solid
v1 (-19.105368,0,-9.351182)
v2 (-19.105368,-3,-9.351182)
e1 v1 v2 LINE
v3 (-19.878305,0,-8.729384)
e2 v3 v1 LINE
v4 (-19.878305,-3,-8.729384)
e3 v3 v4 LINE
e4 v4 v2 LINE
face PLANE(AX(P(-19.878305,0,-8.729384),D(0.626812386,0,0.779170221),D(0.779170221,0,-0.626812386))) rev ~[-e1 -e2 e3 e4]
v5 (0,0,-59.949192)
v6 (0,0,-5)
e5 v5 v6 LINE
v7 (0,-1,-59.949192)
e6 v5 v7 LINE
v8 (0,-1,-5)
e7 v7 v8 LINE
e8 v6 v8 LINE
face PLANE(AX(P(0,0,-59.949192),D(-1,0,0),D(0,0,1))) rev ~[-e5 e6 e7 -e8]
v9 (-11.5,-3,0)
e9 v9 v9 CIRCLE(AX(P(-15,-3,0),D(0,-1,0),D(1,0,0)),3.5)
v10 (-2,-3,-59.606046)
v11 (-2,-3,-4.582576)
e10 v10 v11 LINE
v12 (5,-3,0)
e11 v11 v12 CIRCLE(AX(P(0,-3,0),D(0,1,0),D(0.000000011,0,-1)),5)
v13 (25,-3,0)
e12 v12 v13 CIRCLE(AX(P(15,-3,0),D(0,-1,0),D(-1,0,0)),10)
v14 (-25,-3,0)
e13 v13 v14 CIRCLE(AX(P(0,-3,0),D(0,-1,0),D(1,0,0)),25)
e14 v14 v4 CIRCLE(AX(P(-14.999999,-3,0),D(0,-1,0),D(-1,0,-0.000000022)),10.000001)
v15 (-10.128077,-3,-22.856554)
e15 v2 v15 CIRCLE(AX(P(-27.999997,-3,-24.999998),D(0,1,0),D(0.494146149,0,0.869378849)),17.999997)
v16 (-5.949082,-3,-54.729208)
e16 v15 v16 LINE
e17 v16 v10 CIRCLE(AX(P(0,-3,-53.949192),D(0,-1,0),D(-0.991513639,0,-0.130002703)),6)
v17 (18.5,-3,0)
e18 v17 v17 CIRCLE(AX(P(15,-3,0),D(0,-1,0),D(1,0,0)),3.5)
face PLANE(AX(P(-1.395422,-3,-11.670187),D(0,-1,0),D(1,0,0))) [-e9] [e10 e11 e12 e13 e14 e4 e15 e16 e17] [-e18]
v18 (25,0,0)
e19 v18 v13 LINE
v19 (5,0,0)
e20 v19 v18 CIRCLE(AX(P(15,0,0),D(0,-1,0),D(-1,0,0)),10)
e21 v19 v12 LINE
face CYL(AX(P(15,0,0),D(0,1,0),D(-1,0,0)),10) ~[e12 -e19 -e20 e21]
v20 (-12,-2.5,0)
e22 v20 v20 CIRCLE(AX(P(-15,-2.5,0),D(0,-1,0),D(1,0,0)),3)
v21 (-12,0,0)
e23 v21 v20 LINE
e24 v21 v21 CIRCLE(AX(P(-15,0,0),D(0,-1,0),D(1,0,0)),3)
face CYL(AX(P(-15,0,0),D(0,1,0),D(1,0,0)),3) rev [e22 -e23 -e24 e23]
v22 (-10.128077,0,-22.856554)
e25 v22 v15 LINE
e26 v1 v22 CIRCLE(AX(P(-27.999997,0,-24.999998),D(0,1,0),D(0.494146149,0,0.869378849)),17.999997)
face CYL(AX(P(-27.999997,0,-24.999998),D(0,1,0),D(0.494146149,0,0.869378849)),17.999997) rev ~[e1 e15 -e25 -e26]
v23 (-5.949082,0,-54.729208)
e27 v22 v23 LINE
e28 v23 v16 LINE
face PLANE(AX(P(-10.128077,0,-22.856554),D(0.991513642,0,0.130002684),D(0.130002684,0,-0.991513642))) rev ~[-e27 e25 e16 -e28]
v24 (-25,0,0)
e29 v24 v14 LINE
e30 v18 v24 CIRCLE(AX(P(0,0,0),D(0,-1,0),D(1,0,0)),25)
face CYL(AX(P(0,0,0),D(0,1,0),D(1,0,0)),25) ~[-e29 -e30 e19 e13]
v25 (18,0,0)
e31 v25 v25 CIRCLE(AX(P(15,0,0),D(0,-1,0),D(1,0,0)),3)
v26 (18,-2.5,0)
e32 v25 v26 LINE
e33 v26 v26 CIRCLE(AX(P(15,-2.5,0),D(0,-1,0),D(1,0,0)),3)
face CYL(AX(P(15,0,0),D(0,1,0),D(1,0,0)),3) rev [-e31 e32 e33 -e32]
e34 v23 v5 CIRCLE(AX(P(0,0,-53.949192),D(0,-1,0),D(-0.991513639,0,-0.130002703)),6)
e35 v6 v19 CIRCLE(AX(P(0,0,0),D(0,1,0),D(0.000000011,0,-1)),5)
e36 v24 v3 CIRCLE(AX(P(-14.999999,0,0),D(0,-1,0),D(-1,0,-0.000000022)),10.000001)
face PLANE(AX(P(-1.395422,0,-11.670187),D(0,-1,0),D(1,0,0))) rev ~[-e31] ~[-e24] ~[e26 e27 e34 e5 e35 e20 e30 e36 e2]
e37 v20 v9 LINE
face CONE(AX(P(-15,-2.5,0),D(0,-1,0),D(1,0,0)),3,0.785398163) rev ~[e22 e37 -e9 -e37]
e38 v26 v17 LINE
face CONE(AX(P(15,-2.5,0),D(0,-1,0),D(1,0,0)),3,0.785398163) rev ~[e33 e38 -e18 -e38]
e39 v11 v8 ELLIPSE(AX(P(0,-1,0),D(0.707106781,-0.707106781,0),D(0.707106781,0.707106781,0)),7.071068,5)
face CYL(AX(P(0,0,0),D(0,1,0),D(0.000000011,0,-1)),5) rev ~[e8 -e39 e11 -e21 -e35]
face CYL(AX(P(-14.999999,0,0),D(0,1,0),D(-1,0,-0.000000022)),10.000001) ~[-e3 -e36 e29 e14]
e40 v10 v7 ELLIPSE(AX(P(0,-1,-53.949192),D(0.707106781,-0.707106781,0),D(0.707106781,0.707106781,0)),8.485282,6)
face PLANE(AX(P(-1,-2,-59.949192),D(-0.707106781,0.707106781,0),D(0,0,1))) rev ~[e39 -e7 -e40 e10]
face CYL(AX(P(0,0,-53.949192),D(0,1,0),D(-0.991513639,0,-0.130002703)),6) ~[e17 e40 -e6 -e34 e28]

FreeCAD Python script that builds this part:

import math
import FreeCAD as App
import Part
import Sketcher
Q = App.Units.Quantity


def edges_at(feature, points):
    """Names of the edges that pass closest to the given points."""
    edges = feature.Shape.Edges
    near = lambda p: min(range(len(edges)), key=lambda i: edges[i].distToShape(Part.Vertex(*p))[0])
    return sorted({f"Edge{near(p) + 1}" for p in points})

doc = App.newDocument("Part")
params = doc.addObject("Spreadsheet::Sheet", "Params")
for row, (alias, value) in enumerate([
    ("sketch1_diameter", "6 mm"),
    ("sketch1_radius", "10 mm"),
    ("sketch1_radius2", "25 mm"),
    ("sketch1_radius3", "6 mm"),
    ("pad1_length", "3 mm"),
    ("chamfer_size", "0.5 mm"),
    ("chamfer2_size", "2 mm"),
], start=1):
    params.set(f"A{row}", alias)
    params.set(f"B{row}", "=" + value)
    params.setAlias(f"B{row}", alias)

body = doc.addObject("PartDesign::Body", "Body")

sketch1 = doc.addObject("Sketcher::SketchObject", "Sketch")
body.addObject(sketch1)
sketch1.AttachmentSupport = (doc.XZ_Plane, [""])
sketch1.MapMode = "FlatFace"
sketch1.addGeometry([
    Part.ArcOfCircle(Part.Circle(App.Vector(15, 0, 0), App.Vector(0, 0, 1), 10), math.radians(180), math.radians(360)),
    Part.ArcOfCircle(Part.Circle(App.Vector(0, 0, 0), App.Vector(0, 0, 1), 25), math.radians(0), math.radians(180)),
    Part.ArcOfCircle(Part.Circle(App.Vector(-15, 0, 0), App.Vector(0, 0, 1), 10), math.radians(-180), math.radians(-119)),
    Part.LineSegment(App.Vector(-19.9, -8.7, 0), App.Vector(-19.1, -9.4, 0)),
    Part.ArcOfCircle(Part.Circle(App.Vector(-28, -25, 0), App.Vector(0, 0, 1), 18), math.radians(7), math.radians(60)),
    Part.LineSegment(App.Vector(-10.1, -22.9, 0), App.Vector(-5.9, -54.7, 0)),
    Part.ArcOfCircle(Part.Circle(App.Vector(0, -53.9, 0), App.Vector(0, 0, 1), 6), math.radians(-173), math.radians(-90)),
    Part.LineSegment(App.Vector(0, -59.9, 0), App.Vector(0, -5, 0)),
    Part.ArcOfCircle(Part.Circle(App.Vector(0, 0, 0), App.Vector(0, 0, 1), 5), math.radians(0), math.radians(270)),
    Part.Circle(App.Vector(-15, 0, 0), App.Vector(0, 0, 1), 3),
    Part.Circle(App.Vector(15, 0, 0), App.Vector(0, 0, 1), 3),
], False)
sketch1.addConstraint([
    Sketcher.Constraint("Tangent", 0, 2, 1, 1),
    Sketcher.Constraint("Tangent", 1, 2, 2, 1),
    Sketcher.Constraint("Coincident", 2, 2, 3, 1),
    Sketcher.Constraint("Coincident", 3, 2, 4, 2),
    Sketcher.Constraint("Coincident", 4, 1, 5, 1),
    Sketcher.Constraint("Tangent", 5, 2, 6, 1),
    Sketcher.Constraint("Coincident", 6, 2, 7, 1),
    Sketcher.Constraint("Coincident", 7, 2, 8, 2),
    Sketcher.Constraint("Tangent", 8, 1, 0, 1),
    Sketcher.Constraint("Vertical", 7),
    Sketcher.Constraint("Coincident", 1, 3, -1, 1),
    Sketcher.Constraint("Coincident", 8, 3, -1, 1),
    Sketcher.Constraint("Coincident", 9, 3, 2, 3),
    Sketcher.Constraint("Coincident", 10, 3, 0, 3),
    Sketcher.Constraint("Equal", 0, 2),
    Sketcher.Constraint("Equal", 9, 10),
    Sketcher.Constraint("PointOnObject", 0, 3, -1),
    Sketcher.Constraint("PointOnObject", 2, 3, -1),
    Sketcher.Constraint("PointOnObject", 6, 3, -2),
    Sketcher.Constraint("PointOnObject", 6, 2, -2),
    Sketcher.Constraint("Diameter", 9, Q("6 mm")),
    Sketcher.Constraint("Radius", 0, Q("10 mm")),
    Sketcher.Constraint("Radius", 1, Q("25 mm")),
    Sketcher.Constraint("Radius", 6, Q("6 mm")),
    Sketcher.Constraint("DistanceY", 4, 3, -1, 1, Q("24.999998 mm")),
    Sketcher.Constraint("Distance", 3, Q("0.992 mm")),
    Sketcher.Constraint("Radius", 4, Q("17.999997 mm")),
    Sketcher.Constraint("DistanceY", 7, 1, 7, 2, Q("54.949192 mm")),
    Sketcher.Constraint("Distance", 5, Q("32.145452 mm")),
    Sketcher.Constraint("DistanceX", 5, 2, -1, 1, Q("5.949082 mm")),
    Sketcher.Constraint("DistanceX", 3, 2, 2, 3, Q("4.105369 mm")),
])
sketch1.setExpression("Constraints[20]", "Params.sketch1_diameter")
sketch1.setExpression("Constraints[21]", "Params.sketch1_radius")
sketch1.setExpression("Constraints[22]", "Params.sketch1_radius2")
sketch1.setExpression("Constraints[23]", "Params.sketch1_radius3")
pad1 = doc.addObject("PartDesign::Pad", "Pad")
body.addObject(pad1)
pad1.Profile = sketch1
pad1.setExpression("Length", "Params.pad1_length")
doc.recompute()

chamfer = doc.addObject("PartDesign::Chamfer", "Chamfer")
body.addObject(chamfer)
chamfer.Base = (pad1, edges_at(pad1, [(-18, -3, 0), (12, -3, 0)]))
chamfer.setExpression("Size", "Params.chamfer_size")
doc.recompute()

chamfer2 = doc.addObject("PartDesign::Chamfer", "Chamfer001")
body.addObject(chamfer2)
chamfer2.Base = (chamfer, edges_at(chamfer, [(0, -3, -32.475)]))
chamfer2.setExpression("Size", "Params.chamfer2_size")

doc.recompute()
